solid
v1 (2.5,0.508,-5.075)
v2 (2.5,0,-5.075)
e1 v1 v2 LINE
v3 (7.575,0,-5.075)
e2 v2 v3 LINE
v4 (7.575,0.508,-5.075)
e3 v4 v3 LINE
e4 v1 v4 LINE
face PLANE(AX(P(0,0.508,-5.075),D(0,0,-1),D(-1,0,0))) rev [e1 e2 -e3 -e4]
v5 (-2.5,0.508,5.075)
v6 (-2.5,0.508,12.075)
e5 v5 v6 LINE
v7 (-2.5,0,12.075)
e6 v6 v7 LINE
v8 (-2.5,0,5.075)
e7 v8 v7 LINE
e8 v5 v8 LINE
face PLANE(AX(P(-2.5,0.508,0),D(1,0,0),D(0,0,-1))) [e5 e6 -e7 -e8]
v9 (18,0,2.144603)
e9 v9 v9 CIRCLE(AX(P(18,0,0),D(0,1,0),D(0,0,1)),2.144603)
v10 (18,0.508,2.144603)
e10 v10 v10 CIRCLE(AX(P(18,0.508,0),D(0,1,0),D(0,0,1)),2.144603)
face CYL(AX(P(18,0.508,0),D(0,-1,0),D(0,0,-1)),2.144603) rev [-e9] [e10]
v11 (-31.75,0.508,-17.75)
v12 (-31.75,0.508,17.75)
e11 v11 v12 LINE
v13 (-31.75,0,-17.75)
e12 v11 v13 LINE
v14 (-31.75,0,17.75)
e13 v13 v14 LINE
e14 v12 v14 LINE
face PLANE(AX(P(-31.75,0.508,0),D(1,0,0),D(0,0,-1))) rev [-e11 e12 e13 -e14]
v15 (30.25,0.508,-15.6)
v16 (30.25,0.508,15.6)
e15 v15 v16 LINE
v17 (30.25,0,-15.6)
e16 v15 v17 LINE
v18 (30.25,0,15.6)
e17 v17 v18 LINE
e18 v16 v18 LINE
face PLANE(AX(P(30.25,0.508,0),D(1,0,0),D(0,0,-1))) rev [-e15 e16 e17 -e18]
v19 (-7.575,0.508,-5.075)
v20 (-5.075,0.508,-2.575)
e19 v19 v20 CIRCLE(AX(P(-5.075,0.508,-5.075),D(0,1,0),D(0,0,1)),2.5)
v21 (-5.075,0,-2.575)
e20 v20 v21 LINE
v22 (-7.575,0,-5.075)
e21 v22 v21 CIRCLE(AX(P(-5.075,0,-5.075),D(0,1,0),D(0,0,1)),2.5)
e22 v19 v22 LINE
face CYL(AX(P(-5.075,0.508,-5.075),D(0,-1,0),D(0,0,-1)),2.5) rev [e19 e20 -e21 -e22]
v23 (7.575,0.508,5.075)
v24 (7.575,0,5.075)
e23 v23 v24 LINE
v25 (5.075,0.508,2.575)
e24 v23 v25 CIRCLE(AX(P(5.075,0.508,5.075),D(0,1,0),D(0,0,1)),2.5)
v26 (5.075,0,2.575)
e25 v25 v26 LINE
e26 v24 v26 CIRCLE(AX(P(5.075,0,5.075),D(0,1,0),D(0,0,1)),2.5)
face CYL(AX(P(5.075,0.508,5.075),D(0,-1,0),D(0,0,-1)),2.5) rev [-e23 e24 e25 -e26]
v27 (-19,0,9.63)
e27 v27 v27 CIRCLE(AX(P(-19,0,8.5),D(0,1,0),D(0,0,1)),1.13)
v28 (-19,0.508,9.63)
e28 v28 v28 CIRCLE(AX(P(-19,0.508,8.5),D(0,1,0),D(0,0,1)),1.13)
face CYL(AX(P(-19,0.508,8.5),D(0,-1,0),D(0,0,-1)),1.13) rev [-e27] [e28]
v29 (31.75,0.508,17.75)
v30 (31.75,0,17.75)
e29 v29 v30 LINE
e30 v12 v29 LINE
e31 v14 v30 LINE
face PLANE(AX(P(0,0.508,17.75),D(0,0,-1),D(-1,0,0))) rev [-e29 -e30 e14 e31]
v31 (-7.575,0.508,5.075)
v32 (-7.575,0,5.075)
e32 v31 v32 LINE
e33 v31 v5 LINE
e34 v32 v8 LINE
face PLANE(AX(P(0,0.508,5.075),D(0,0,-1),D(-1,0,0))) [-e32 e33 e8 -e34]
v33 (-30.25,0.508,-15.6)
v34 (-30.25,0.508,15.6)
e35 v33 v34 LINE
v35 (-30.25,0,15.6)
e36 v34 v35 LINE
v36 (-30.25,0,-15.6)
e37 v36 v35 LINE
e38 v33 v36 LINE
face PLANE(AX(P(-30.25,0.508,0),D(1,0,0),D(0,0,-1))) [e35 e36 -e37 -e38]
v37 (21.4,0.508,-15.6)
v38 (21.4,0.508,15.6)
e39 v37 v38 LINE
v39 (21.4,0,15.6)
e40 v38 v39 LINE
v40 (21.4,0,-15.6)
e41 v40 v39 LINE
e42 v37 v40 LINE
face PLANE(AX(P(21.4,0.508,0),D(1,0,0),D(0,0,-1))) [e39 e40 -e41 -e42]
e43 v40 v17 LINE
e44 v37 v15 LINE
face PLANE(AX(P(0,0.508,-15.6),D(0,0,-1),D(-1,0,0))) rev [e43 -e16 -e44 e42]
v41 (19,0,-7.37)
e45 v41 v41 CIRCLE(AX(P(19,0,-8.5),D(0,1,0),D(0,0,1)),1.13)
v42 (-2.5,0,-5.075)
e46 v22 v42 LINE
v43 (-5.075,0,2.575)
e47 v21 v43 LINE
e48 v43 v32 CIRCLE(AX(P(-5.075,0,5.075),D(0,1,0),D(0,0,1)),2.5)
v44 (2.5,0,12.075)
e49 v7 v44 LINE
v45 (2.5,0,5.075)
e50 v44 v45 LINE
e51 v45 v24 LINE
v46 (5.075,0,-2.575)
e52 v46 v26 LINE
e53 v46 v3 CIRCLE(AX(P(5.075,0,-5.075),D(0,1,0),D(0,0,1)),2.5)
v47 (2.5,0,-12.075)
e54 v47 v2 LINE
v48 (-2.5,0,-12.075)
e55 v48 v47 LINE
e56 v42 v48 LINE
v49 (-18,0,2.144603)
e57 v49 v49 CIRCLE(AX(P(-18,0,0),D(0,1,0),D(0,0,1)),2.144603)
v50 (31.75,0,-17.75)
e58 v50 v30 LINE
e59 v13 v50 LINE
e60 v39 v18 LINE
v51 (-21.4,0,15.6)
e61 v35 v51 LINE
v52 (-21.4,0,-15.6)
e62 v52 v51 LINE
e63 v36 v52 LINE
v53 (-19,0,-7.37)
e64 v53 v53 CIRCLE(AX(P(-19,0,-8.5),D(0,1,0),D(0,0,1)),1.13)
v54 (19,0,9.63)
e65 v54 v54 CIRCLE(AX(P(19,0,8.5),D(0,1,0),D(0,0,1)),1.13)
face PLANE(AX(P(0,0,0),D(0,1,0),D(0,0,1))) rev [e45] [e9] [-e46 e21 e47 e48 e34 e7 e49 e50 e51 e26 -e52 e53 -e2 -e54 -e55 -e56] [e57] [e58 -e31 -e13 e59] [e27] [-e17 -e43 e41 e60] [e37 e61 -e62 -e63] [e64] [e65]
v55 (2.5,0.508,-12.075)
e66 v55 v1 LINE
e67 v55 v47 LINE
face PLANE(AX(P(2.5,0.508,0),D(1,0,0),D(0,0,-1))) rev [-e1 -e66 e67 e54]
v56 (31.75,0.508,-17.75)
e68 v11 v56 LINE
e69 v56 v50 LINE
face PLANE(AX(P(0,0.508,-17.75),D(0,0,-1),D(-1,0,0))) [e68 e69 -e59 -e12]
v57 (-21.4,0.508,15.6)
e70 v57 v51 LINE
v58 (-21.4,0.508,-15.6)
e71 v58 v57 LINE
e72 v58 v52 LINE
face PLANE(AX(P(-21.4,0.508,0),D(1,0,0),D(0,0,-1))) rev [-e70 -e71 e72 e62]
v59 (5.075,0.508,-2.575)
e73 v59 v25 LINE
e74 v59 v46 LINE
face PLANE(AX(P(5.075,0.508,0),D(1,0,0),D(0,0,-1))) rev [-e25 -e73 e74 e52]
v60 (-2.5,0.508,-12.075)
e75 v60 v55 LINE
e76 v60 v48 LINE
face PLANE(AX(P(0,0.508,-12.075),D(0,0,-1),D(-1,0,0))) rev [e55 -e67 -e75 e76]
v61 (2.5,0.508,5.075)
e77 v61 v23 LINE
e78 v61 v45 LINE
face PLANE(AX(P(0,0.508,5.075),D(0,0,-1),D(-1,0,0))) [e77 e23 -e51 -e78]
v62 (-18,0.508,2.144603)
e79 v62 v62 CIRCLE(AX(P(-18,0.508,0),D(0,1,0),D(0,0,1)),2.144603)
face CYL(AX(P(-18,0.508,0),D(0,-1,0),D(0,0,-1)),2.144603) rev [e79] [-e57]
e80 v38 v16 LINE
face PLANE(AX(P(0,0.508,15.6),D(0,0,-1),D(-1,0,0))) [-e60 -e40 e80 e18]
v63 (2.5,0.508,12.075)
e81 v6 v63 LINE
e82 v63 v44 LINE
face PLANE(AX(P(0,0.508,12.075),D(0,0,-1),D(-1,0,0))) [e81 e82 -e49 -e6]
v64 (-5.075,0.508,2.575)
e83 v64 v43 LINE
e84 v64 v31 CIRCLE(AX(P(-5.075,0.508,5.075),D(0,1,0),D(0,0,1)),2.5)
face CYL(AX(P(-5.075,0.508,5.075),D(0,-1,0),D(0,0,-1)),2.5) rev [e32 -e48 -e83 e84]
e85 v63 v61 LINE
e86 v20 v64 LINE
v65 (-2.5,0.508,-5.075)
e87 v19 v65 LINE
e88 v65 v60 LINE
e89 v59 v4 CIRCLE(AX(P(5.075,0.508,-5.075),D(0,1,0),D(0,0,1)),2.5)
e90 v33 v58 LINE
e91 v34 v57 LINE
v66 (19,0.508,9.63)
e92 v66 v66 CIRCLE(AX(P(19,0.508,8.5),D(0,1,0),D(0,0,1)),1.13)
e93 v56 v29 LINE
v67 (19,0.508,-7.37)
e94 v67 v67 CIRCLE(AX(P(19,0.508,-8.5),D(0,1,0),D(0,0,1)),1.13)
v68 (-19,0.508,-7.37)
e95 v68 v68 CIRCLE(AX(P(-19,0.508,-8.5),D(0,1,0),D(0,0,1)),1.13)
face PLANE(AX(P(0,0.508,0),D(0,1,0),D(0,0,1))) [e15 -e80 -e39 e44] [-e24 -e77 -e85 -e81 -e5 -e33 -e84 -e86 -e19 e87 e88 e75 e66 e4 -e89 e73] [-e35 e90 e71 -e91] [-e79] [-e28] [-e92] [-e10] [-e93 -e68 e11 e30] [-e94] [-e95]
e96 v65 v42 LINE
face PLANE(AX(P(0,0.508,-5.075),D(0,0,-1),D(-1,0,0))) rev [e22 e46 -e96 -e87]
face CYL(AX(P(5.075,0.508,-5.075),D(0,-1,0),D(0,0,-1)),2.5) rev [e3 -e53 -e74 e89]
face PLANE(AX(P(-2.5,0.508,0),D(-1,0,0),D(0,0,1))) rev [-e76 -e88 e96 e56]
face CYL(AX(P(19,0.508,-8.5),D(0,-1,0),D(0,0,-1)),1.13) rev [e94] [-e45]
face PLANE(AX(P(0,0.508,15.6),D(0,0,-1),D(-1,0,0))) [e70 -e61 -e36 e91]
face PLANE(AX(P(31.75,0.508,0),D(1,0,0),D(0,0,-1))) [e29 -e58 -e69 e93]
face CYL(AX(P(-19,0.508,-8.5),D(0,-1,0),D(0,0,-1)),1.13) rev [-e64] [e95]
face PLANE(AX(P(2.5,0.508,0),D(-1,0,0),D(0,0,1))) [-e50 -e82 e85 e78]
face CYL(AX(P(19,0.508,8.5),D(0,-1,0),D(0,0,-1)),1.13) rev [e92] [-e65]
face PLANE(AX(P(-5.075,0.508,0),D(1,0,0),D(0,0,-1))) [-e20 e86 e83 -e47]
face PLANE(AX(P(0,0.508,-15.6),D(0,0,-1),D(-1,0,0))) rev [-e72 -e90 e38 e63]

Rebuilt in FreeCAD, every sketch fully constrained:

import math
import FreeCAD as App
import Part
import Sketcher

V = App.Vector
Q = App.Units.Quantity

doc = App.newDocument("Part")
params = doc.addObject("Spreadsheet::Sheet", "Params")
for row, (alias, value) in enumerate([
    ("sketch1_radius", "2.5 mm"),
    ("sketch1_diameter", "2.26 mm"),
    ("sketch1_width", "5 mm"),
    ("sketch1_height", "7 mm"),
    ("sketch1_width2", "63.5 mm"),
    ("pad1_length", "0.508 mm"),
], start=1):
    params.set(f"A{row}", alias)
    params.set(f"B{row}", "=" + value)
    params.setAlias(f"B{row}", alias)

body = doc.addObject("PartDesign::Body", "Body")

sketch1 = body.newObject("Sketcher::SketchObject", "Sketch")
sketch1.AttachmentSupport = (doc.getObject("XZ_Plane"), [""])
sketch1.MapMode = "FlatFace"
sketch1.addGeometry([
    Part.LineSegment(V(-31.75, -17.75, 0), V(-31.75, 17.75, 0)),
    Part.LineSegment(V(-31.75, 17.75, 0), V(31.75, 17.75, 0)),
    Part.LineSegment(V(31.75, 17.75, 0), V(31.75, -17.75, 0)),
    Part.LineSegment(V(31.75, -17.75, 0), V(-31.75, -17.75, 0)),
    Part.Circle(V(-19, 8.5, 0), V(0, 0, 1), 1.13),
    Part.Circle(V(19, 8.5, 0), V(0, 0, 1), 1.13),
    Part.LineSegment(V(-21.4, 15.6, 0), V(-30.25, 15.6, 0)),
    Part.LineSegment(V(-30.25, 15.6, 0), V(-30.25, -15.6, 0)),
    Part.LineSegment(V(-30.25, -15.6, 0), V(-21.4, -15.6, 0)),
    Part.LineSegment(V(-21.4, -15.6, 0), V(-21.4, 15.6, 0)),
    Part.Circle(V(-18, 0, 0), V(0, 0, 1), 2.144603),
    Part.Circle(V(-19, -8.5, 0), V(0, 0, 1), 1.13),
    Part.LineSegment(V(-7.575, -5.075, 0), V(-2.5, -5.075, 0)),
    Part.LineSegment(V(-2.5, -5.075, 0), V(-2.5, -12.075, 0)),
    Part.LineSegment(V(-2.5, -12.075, 0), V(2.5, -12.075, 0)),
    Part.LineSegment(V(2.5, -12.075, 0), V(2.5, -5.075, 0)),
    Part.LineSegment(V(2.5, -5.075, 0), V(7.575, -5.075, 0)),
    Part.ArcOfCircle(Part.Circle(V(5.075, -5.075, 0), V(0, 0, 1), 2.5), math.radians(0), math.radians(90)),
    Part.LineSegment(V(5.075, -2.575, 0), V(5.075, 2.575, 0)),
    Part.ArcOfCircle(Part.Circle(V(5.075, 5.075, 0), V(0, 0, 1), 2.5), math.radians(-90), math.radians(0)),
    Part.LineSegment(V(7.575, 5.075, 0), V(2.5, 5.075, 0)),
    Part.LineSegment(V(2.5, 5.075, 0), V(2.5, 12.075, 0)),
    Part.LineSegment(V(2.5, 12.075, 0), V(-2.5, 12.075, 0)),
    Part.LineSegment(V(-2.5, 12.075, 0), V(-2.5, 5.075, 0)),
    Part.LineSegment(V(-2.5, 5.075, 0), V(-7.575, 5.075, 0)),
    Part.ArcOfCircle(Part.Circle(V(-5.075, 5.075, 0), V(0, 0, 1), 2.5), math.radians(180), math.radians(270)),
    Part.LineSegment(V(-5.075, 2.575, 0), V(-5.075, -2.575, 0)),
    Part.ArcOfCircle(Part.Circle(V(-5.075, -5.075, 0), V(0, 0, 1), 2.5), math.radians(90), math.radians(180)),
    Part.Circle(V(18, 0, 0), V(0, 0, 1), 2.144603),
    Part.LineSegment(V(30.25, 15.6, 0), V(21.4, 15.6, 0)),
    Part.LineSegment(V(21.4, 15.6, 0), V(21.4, -15.6, 0)),
    Part.LineSegment(V(21.4, -15.6, 0), V(30.25, -15.6, 0)),
    Part.LineSegment(V(30.25, -15.6, 0), V(30.25, 15.6, 0)),
    Part.Circle(V(19, -8.5, 0), V(0, 0, 1), 1.13),
], False)
sketch1.addConstraint([
    Sketcher.Constraint("Coincident", 0, 2, 1, 1),
    Sketcher.Constraint("Coincident", 1, 2, 2, 1),
    Sketcher.Constraint("Coincident", 2, 2, 3, 1),
    Sketcher.Constraint("Coincident", 3, 2, 0, 1),
    Sketcher.Constraint("Coincident", 6, 2, 7, 1),
    Sketcher.Constraint("Coincident", 7, 2, 8, 1),
    Sketcher.Constraint("Coincident", 8, 2, 9, 1),
    Sketcher.Constraint("Coincident", 9, 2, 6, 1),
    Sketcher.Constraint("Coincident", 12, 2, 13, 1),
    Sketcher.Constraint("Coincident", 13, 2, 14, 1),
    Sketcher.Constraint("Coincident", 14, 2, 15, 1),
    Sketcher.Constraint("Coincident", 15, 2, 16, 1),
    Sketcher.Constraint("Coincident", 16, 2, 17, 1),
    Sketcher.Constraint("Coincident", 17, 2, 18, 1),
    Sketcher.Constraint("Coincident", 18, 2, 19, 1),
    Sketcher.Constraint("Coincident", 19, 2, 20, 1),
    Sketcher.Constraint("Coincident", 20, 2, 21, 1),
    Sketcher.Constraint("Coincident", 21, 2, 22, 1),
    Sketcher.Constraint("Coincident", 22, 2, 23, 1),
    Sketcher.Constraint("Coincident", 23, 2, 24, 1),
    Sketcher.Constraint("Coincident", 24, 2, 25, 1),
    Sketcher.Constraint("Coincident", 25, 2, 26, 1),
    Sketcher.Constraint("Coincident", 26, 2, 27, 1),
    Sketcher.Constraint("Coincident", 27, 2, 12, 1),
    Sketcher.Constraint("Coincident", 29, 2, 30, 1),
    Sketcher.Constraint("Coincident", 30, 2, 31, 1),
    Sketcher.Constraint("Coincident", 31, 2, 32, 1),
    Sketcher.Constraint("Coincident", 32, 2, 29, 1),
    Sketcher.Constraint("Vertical", 0),
    Sketcher.Constraint("Horizontal", 1),
    Sketcher.Constraint("Vertical", 2),
    Sketcher.Constraint("Horizontal", 3),
    Sketcher.Constraint("Horizontal", 6),
    Sketcher.Constraint("Vertical", 7),
    Sketcher.Constraint("Horizontal", 8),
    Sketcher.Constraint("Vertical", 9),
    Sketcher.Constraint("Horizontal", 12),
    Sketcher.Constraint("Vertical", 13),
    Sketcher.Constraint("Horizontal", 14),
    Sketcher.Constraint("Vertical", 15),
    Sketcher.Constraint("Horizontal", 16),
    Sketcher.Constraint("Vertical", 18),
    Sketcher.Constraint("Horizontal", 20),
    Sketcher.Constraint("Vertical", 21),
    Sketcher.Constraint("Horizontal", 22),
    Sketcher.Constraint("Vertical", 23),
    Sketcher.Constraint("Horizontal", 24),
    Sketcher.Constraint("Vertical", 26),
    Sketcher.Constraint("Horizontal", 29),
    Sketcher.Constraint("Vertical", 30),
    Sketcher.Constraint("Horizontal", 31),
    Sketcher.Constraint("Vertical", 32),
    Sketcher.Constraint("Equal", 4, 5),
    Sketcher.Constraint("Equal", 5, 11),
    Sketcher.Constraint("Equal", 17, 19),
    Sketcher.Constraint("Equal", 19, 25),
    Sketcher.Constraint("Equal", 25, 27),
    Sketcher.Constraint("Equal", 10, 28),
    Sketcher.Constraint("Equal", 11, 33),
    Sketcher.Constraint("Symmetric", 5, 3, 11, 3, -1, 1),
    Sketcher.Constraint("Symmetric", 17, 3, 25, 3, -1, 1),
    Sketcher.Constraint("Symmetric", 19, 3, 27, 3, -1, 1),
    Sketcher.Constraint("Symmetric", 10, 3, 28, 3, -1, 1),
    Sketcher.Constraint("Symmetric", 4, 3, 33, 3, -1, 1),
    Sketcher.Constraint("Symmetric", 0, 2, 2, 2, -1, 1),
    Sketcher.Constraint("Symmetric", 12, 2, 20, 2, -1, 1),
    Sketcher.Constraint("Symmetric", 14, 2, 22, 2, -1, 1),
    Sketcher.Constraint("Symmetric", 8, 2, 29, 2, -1, 1),
    Sketcher.Constraint("Symmetric", 6, 2, 31, 2, -1, 1),
    Sketcher.Constraint("Symmetric", 4, 3, 5, 3, -2),
    Sketcher.Constraint("Symmetric", 19, 3, 25, 3, -2),
    Sketcher.Constraint("Symmetric", 12, 2, 15, 2, -2),
    Sketcher.Constraint("PointOnObject", 10, 3, -1),
    Sketcher.Constraint("Horizontal", 27, 3, 12, 2),
    Sketcher.Constraint("Horizontal", 20, 2, 23, 2),
    Sketcher.Constraint("Horizontal", 9, 2, 29, 2),
    Sketcher.Constraint("Vertical", 19, 3, 17, 2),
    Sketcher.Constraint("Vertical", 27, 3, 25, 2),
    Sketcher.Constraint("Radius", 17, Q("2.5 mm")),
    Sketcher.Constraint("Diameter", 4, Q("2.26 mm")),
    Sketcher.Constraint("DistanceX", 14, 1, 14, 2, Q("5 mm")),
    Sketcher.Constraint("DistanceY", 13, 2, 13, 1, Q("7 mm")),
    Sketcher.Constraint("DistanceX", 1, 1, 1, 2, Q("63.5 mm")),
    Sketcher.Constraint("DistanceY", 0, 1, 0, 2, Q("35.5 mm")),
    Sketcher.Constraint("DistanceY", 7, 2, 7, 1, Q("31.2 mm")),
    Sketcher.Constraint("DistanceX", 4, 3, -1, 1, Q("19 mm")),
    Sketcher.Constraint("DistanceX", 10, 3, -1, 1, Q("18 mm")),
    Sketcher.Constraint("DistanceY", 11, 3, 4, 3, Q("17 mm")),
    Sketcher.Constraint("DistanceX", 6, 2, 6, 1, Q("8.85 mm")),
    Sketcher.Constraint("DistanceY", 18, 1, 18, 2, Q("5.15 mm")),
    Sketcher.Constraint("DistanceX", 8, 2, -1, 1, Q("21.4 mm")),
    Sketcher.Constraint("DistanceX", 12, 1, 12, 2, Q("5.075 mm")),
    Sketcher.Constraint("Diameter", 10, Q("4.289207 mm")),
])
sketch1.setExpression("Constraints[78]", "Params.sketch1_radius")
sketch1.setExpression("Constraints[79]", "Params.sketch1_diameter")
sketch1.setExpression("Constraints[80]", "Params.sketch1_width")
sketch1.setExpression("Constraints[81]", "Params.sketch1_height")
sketch1.setExpression("Constraints[82]", "Params.sketch1_width2")
pad1 = body.newObject("PartDesign::Pad", "Pad")
pad1.Profile = sketch1
pad1.setExpression("Length", "Params.pad1_length")
pad1.Reversed = True

doc.recompute()
